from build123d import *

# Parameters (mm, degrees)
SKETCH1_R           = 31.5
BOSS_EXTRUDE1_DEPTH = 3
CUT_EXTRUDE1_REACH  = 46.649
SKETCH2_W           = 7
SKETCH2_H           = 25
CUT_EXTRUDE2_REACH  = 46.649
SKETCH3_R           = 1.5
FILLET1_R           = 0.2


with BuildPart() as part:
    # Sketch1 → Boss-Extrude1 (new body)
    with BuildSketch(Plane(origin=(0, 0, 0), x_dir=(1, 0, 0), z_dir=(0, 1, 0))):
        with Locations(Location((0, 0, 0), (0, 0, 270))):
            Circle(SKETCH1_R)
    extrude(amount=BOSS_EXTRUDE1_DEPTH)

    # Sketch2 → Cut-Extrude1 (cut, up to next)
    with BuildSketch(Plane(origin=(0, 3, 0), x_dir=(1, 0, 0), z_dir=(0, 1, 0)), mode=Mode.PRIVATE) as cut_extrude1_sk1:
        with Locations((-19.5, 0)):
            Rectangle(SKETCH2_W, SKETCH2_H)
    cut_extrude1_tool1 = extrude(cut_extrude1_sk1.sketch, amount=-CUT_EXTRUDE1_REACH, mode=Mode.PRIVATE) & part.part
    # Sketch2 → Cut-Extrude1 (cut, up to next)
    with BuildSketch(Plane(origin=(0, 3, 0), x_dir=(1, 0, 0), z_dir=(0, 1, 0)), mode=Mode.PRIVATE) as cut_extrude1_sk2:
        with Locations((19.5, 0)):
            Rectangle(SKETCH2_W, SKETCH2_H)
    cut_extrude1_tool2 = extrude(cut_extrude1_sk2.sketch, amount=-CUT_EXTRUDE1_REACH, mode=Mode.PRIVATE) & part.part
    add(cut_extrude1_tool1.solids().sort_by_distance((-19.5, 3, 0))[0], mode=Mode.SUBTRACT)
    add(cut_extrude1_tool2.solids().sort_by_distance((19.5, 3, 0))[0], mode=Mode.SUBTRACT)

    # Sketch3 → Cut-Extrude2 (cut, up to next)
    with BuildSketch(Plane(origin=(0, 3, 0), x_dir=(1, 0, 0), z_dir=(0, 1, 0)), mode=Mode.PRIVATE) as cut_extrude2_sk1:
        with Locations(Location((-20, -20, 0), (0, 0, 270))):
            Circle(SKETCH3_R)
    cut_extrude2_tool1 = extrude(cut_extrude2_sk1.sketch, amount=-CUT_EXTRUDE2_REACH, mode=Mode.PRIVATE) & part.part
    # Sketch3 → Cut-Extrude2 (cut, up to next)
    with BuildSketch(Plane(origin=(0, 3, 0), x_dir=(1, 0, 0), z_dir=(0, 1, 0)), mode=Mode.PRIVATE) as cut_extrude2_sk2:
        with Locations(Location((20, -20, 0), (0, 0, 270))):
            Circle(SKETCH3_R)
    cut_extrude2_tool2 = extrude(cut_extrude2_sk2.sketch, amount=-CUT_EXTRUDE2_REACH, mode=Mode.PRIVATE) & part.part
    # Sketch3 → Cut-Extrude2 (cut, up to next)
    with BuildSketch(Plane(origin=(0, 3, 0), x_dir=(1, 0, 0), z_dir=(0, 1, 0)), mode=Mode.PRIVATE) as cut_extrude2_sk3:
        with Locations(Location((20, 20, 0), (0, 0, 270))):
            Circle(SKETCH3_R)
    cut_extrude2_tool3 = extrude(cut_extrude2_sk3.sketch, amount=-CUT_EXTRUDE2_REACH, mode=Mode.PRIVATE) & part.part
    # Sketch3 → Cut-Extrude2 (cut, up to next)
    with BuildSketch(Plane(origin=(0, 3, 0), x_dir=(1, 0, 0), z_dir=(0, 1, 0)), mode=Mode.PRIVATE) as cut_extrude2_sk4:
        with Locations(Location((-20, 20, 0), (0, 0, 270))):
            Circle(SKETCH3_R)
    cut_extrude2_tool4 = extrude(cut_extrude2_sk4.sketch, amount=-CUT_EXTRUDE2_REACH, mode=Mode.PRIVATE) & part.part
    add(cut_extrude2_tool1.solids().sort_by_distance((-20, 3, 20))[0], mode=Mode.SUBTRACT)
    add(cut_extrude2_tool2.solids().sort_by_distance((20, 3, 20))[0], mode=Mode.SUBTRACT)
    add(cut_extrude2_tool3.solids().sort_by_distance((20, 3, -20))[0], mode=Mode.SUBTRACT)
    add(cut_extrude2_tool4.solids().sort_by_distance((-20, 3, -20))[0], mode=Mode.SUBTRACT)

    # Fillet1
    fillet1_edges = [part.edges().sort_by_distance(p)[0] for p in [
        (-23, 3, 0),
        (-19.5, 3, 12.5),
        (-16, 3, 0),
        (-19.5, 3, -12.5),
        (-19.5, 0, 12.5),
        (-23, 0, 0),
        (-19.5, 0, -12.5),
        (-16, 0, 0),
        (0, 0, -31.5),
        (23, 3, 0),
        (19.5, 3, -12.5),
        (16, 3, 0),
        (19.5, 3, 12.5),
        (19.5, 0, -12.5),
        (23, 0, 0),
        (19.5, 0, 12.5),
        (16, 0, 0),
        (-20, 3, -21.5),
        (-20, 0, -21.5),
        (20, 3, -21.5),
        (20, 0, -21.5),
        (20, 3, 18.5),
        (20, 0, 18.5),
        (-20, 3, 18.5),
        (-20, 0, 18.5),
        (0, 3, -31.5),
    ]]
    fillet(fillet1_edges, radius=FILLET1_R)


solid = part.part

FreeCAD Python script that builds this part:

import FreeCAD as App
import Part
import Sketcher
from FreeCAD import Vector
Q = App.Units.Quantity


def edges_at(feature, points):
    """Names of the edges that pass closest to the given points."""
    edges = feature.Shape.Edges
    near = lambda p: min(range(len(edges)), key=lambda i: edges[i].distToShape(Part.Vertex(*p))[0])
    return sorted({f"Edge{near(p) + 1}" for p in points})


def add_polygon(sketch, points):
    """Adds a closed chain of lines whose ends are joined by coincident constraints."""
    first, n = sketch.GeometryCount, len(points)
    for a, b in zip(points, points[1:] + points[:1]):
        sketch.addGeometry(Part.LineSegment(App.Vector(*a, 0), App.Vector(*b, 0)), False)
    for i in range(n):
        sketch.addConstraint(Sketcher.Constraint("Coincident", first + i, 2, first + (i + 1) % n, 1))

doc = App.newDocument("Part")
params = doc.addObject("Spreadsheet::Sheet", "Params")
for row, (alias, value) in enumerate([
    ("sketch1_diameter", "63 mm"),
    ("pad1_length", "3 mm"),
    ("sketch2_width", "7 mm"),
    ("sketch2_height", "25 mm"),
    ("sketch3_width", "7 mm"),
    ("sketch3_height", "25 mm"),
    ("sketch4_diameter", "3 mm"),
    ("sketch5_diameter", "3 mm"),
    ("sketch6_diameter", "3 mm"),
    ("sketch7_diameter", "3 mm"),
    ("fillet_radius", "0.2 mm"),
], start=1):
    params.set(f"A{row}", alias)
    params.set(f"B{row}", "=" + value)
    params.setAlias(f"B{row}", alias)

body = doc.addObject("PartDesign::Body", "Body")

sketch1 = body.newObject("Sketcher::SketchObject", "Sketch")
sketch1.AttachmentSupport = (doc.getObject("XZ_Plane"), [""])
sketch1.MapMode = "FlatFace"
sketch1.addGeometry(Part.Circle(Vector(0, 0, 0), Vector(0, 0, 1), 32), False)
sketch1.addConstraint([
    Sketcher.Constraint("Coincident", 0, 3, -1, 1),
    Sketcher.Constraint("Diameter", 0, Q("63 mm")),
])
sketch1.setExpression("Constraints[1]", "Params.sketch1_diameter")
pad1 = body.newObject("PartDesign::Pad", "Pad")
pad1.Profile = sketch1
pad1.setExpression("Length", "Params.pad1_length")
pad1.Reversed = True

sketch2 = body.newObject("Sketcher::SketchObject", "Sketch001")
sketch2.AttachmentSupport = (doc.getObject("XZ_Plane"), [""])
sketch2.MapMode = "FlatFace"
sketch2.AttachmentOffset = App.Placement(Vector(0, 0, -3), App.Rotation())
add_polygon(sketch2, [(-23, -12), (-23, 12), (-16, 12), (-16, -12)])
sketch2.addConstraint([
    Sketcher.Constraint("Vertical", 0),
    Sketcher.Constraint("Horizontal", 1),
    Sketcher.Constraint("Vertical", 2),
    Sketcher.Constraint("Horizontal", 3),
    Sketcher.Constraint("DistanceX", 1, 1, 1, 2, Q("7 mm")),
    Sketcher.Constraint("DistanceY", 0, 1, 0, 2, Q("25 mm")),
    Sketcher.Constraint("DistanceX", 0, 2, -1, 1, Q("23 mm")),
    Sketcher.Constraint("DistanceY", -1, 1, 0, 2, Q("12.5 mm")),
])
sketch2.setExpression("Constraints[8]", "Params.sketch2_width")
sketch2.setExpression("Constraints[9]", "Params.sketch2_height")
pocket1 = body.newObject("PartDesign::Pocket", "Pocket")
pocket1.Profile = sketch2
pocket1.Type = "UpToFirst"
pocket1.Reversed = True

sketch3 = body.newObject("Sketcher::SketchObject", "Sketch002")
sketch3.AttachmentSupport = (doc.getObject("XZ_Plane"), [""])
sketch3.MapMode = "FlatFace"
sketch3.AttachmentOffset = App.Placement(Vector(0, 0, -3), App.Rotation())
add_polygon(sketch3, [(16, -12), (16, 12), (23, 12), (23, -12)])
sketch3.addConstraint([
    Sketcher.Constraint("Vertical", 0),
    Sketcher.Constraint("Horizontal", 1),
    Sketcher.Constraint("Vertical", 2),
    Sketcher.Constraint("Horizontal", 3),
    Sketcher.Constraint("DistanceX", 1, 1, 1, 2, Q("7 mm")),
    Sketcher.Constraint("DistanceY", 0, 1, 0, 2, Q("25 mm")),
    Sketcher.Constraint("DistanceX", -1, 1, 0, 2, Q("16 mm")),
    Sketcher.Constraint("DistanceY", -1, 1, 0, 2, Q("12.5 mm")),
])
sketch3.setExpression("Constraints[8]", "Params.sketch3_width")
sketch3.setExpression("Constraints[9]", "Params.sketch3_height")
pocket2 = body.newObject("PartDesign::Pocket", "Pocket001")
pocket2.Profile = sketch3
pocket2.Type = "UpToFirst"
pocket2.Reversed = True

sketch4 = body.newObject("Sketcher::SketchObject", "Sketch003")
sketch4.AttachmentSupport = (doc.getObject("XZ_Plane"), [""])
sketch4.MapMode = "FlatFace"
sketch4.AttachmentOffset = App.Placement(Vector(0, 0, -3), App.Rotation())
sketch4.addGeometry(Part.Circle(Vector(-20, 20, 0), Vector(0, 0, 1), 1.5), False)
sketch4.addConstraint([
    Sketcher.Constraint("Diameter", 0, Q("3 mm")),
    Sketcher.Constraint("DistanceX", 0, 3, -1, 1, Q("20 mm")),
    Sketcher.Constraint("DistanceY", -1, 1, 0, 3, Q("20 mm")),
])
sketch4.setExpression("Constraints[0]", "Params.sketch4_diameter")
pocket3 = body.newObject("PartDesign::Pocket", "Pocket002")
pocket3.Profile = sketch4
pocket3.Type = "UpToFirst"
pocket3.Reversed = True

sketch5 = body.newObject("Sketcher::SketchObject", "Sketch004")
sketch5.AttachmentSupport = (doc.getObject("XZ_Plane"), [""])
sketch5.MapMode = "FlatFace"
sketch5.AttachmentOffset = App.Placement(Vector(0, 0, -3), App.Rotation())
sketch5.addGeometry(Part.Circle(Vector(20, 20, 0), Vector(0, 0, 1), 1.5), False)
sketch5.addConstraint([
    Sketcher.Constraint("Diameter", 0, Q("3 mm")),
    Sketcher.Constraint("DistanceX", -1, 1, 0, 3, Q("20 mm")),
    Sketcher.Constraint("DistanceY", -1, 1, 0, 3, Q("20 mm")),
])
sketch5.setExpression("Constraints[0]", "Params.sketch5_diameter")
pocket4 = body.newObject("PartDesign::Pocket", "Pocket003")
pocket4.Profile = sketch5
pocket4.Type = "UpToFirst"
pocket4.Reversed = True

sketch6 = body.newObject("Sketcher::SketchObject", "Sketch005")
sketch6.AttachmentSupport = (doc.getObject("XZ_Plane"), [""])
sketch6.MapMode = "FlatFace"
sketch6.AttachmentOffset = App.Placement(Vector(0, 0, -3), App.Rotation())
sketch6.addGeometry(Part.Circle(Vector(20, -20, 0), Vector(0, 0, 1), 1.5), False)
sketch6.addConstraint([
    Sketcher.Constraint("Diameter", 0, Q("3 mm")),
    Sketcher.Constraint("DistanceX", -1, 1, 0, 3, Q("20 mm")),
    Sketcher.Constraint("DistanceY", 0, 3, -1, 1, Q("20 mm")),
])
sketch6.setExpression("Constraints[0]", "Params.sketch6_diameter")
pocket5 = body.newObject("PartDesign::Pocket", "Pocket004")
pocket5.Profile = sketch6
pocket5.Type = "UpToFirst"
pocket5.Reversed = True

sketch7 = body.newObject("Sketcher::SketchObject", "Sketch006")
sketch7.AttachmentSupport = (doc.getObject("XZ_Plane"), [""])
sketch7.MapMode = "FlatFace"
sketch7.AttachmentOffset = App.Placement(Vector(0, 0, -3), App.Rotation())
sketch7.addGeometry(Part.Circle(Vector(-20, -20, 0), Vector(0, 0, 1), 1.5), False)
sketch7.addConstraint([
    Sketcher.Constraint("Diameter", 0, Q("3 mm")),
    Sketcher.Constraint("DistanceX", 0, 3, -1, 1, Q("20 mm")),
    Sketcher.Constraint("DistanceY", 0, 3, -1, 1, Q("20 mm")),
])
sketch7.setExpression("Constraints[0]", "Params.sketch7_diameter")
pocket6 = body.newObject("PartDesign::Pocket", "Pocket005")
pocket6.Profile = sketch7
pocket6.Type = "UpToFirst"
pocket6.Reversed = True
doc.recompute()

fillet = body.newObject("PartDesign::Fillet", "Fillet")
fillet.Base = (pocket6, edges_at(pocket6, [
    (-23, 3, 0),
    (-19.5, 3, 12.5),
    (-16, 3, 0),
    (-19.5, 3, -12.5),
    (-19.5, 0, 12.5),
    (-23, 0, 0),
    (-19.5, 0, -12.5),
    (-16, 0, 0),
    (0, 0, -31.5),
    (23, 3, 0),
    (19.5, 3, -12.5),
    (16, 3, 0),
    (19.5, 3, 12.5),
    (19.5, 0, -12.5),
    (23, 0, 0),
    (19.5, 0, 12.5),
    (16, 0, 0),
    (-20, 3, -21.5),
    (-20, 0, -21.5),
    (20, 3, -21.5),
    (20, 0, -21.5),
    (20, 3, 18.5),
    (20, 0, 18.5),
    (-20, 3, 18.5),
    (-20, 0, 18.5),
    (0, 3, -31.5),
]))
fillet.setExpression("Radius", "Params.fillet_radius")

doc.recompute()
